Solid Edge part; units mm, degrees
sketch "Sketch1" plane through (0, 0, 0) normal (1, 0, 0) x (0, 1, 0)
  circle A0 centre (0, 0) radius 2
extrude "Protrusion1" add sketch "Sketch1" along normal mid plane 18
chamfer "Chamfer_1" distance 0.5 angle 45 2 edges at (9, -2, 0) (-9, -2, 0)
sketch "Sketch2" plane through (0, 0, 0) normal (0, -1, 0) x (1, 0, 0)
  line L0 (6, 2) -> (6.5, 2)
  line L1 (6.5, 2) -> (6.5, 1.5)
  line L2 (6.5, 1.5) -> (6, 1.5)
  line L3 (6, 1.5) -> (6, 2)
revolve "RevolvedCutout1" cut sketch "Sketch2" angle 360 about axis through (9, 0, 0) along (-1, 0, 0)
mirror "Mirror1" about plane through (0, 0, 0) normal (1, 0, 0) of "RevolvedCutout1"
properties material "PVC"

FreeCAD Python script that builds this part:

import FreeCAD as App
import Part
import Sketcher
from FreeCAD import Vector


def edges_at(feature, points):
    """Names of the edges that pass closest to the given points."""
    edges = feature.Shape.Edges
    near = lambda p: min(range(len(edges)), key=lambda i: edges[i].distToShape(Part.Vertex(*p))[0])
    return sorted({f"Edge{near(p) + 1}" for p in points})

doc = App.newDocument("Part")
body = doc.addObject("PartDesign::Body", "Body")

# Sketch on YZ plane
sketch1 = body.newObject("Sketcher::SketchObject", "Sketch")
sketch1.AttachmentSupport = (doc.getObject("YZ_Plane"), [""])
sketch1.MapMode = "FlatFace"
sketch1.addGeometry(Part.Circle(Vector(0, 0, 0), Vector(0, 0, 1), 2), False)
sketch1.addConstraint([
    Sketcher.Constraint("Coincident", 0, 3, -1, 1),
    Sketcher.Constraint("Diameter", 0, 4.0),
])
pad1 = body.newObject("PartDesign::Pad", "Pad")
pad1.Profile = sketch1
pad1.Length = 18
pad1.Midplane = True
doc.recompute()

chamfer = body.newObject("PartDesign::Chamfer", "Chamfer")
chamfer.Base = (pad1, edges_at(pad1, [(9, -2, 0), (-9, -2, 0)]))
chamfer.Size = 0.5

# Sketch on XZ plane
sketch2 = body.newObject("Sketcher::SketchObject", "Sketch001")
sketch2.AttachmentSupport = (doc.getObject("XZ_Plane"), [""])
sketch2.MapMode = "FlatFace"
sketch2.addGeometry([
    Part.LineSegment(Vector(6.5, 2, 0), Vector(6, 2, 0)),
    Part.LineSegment(Vector(6, 2, 0), Vector(6, 1.5, 0)),
    Part.LineSegment(Vector(6, 1.5, 0), Vector(6.5, 1.5, 0)),
    Part.LineSegment(Vector(6.5, 1.5, 0), Vector(6.5, 2, 0)),
], False)
sketch2.addConstraint([
    Sketcher.Constraint("Coincident", 0, 2, 1, 1),
    Sketcher.Constraint("Coincident", 1, 2, 2, 1),
    Sketcher.Constraint("Coincident", 2, 2, 3, 1),
    Sketcher.Constraint("Coincident", 3, 2, 0, 1),
    Sketcher.Constraint("Horizontal", 0),
    Sketcher.Constraint("Vertical", 1),
    Sketcher.Constraint("Horizontal", 2),
    Sketcher.Constraint("Vertical", 3),
    Sketcher.Constraint("Equal", 2, 1),
    Sketcher.Constraint("DistanceX", 0, 2, 0, 1, 0.5),
    Sketcher.Constraint("DistanceX", -1, 1, 0, 2, 6.0),
    Sketcher.Constraint("DistanceY", -1, 1, 0, 2, 2.0),
])
groove = body.newObject("PartDesign::Groove", "Groove")
groove.Profile = sketch2
groove.ReferenceAxis = (sketch2, ["H_Axis"])
groove.Angle = 360
doc.recompute()

mirrored = body.newObject("PartDesign::Mirrored", "Mirrored")
mirrored.Originals = [groove]
mirrored.MirrorPlane = (doc.getObject("YZ_Plane"), [""])
body.Tip = mirrored

doc.recompute()
